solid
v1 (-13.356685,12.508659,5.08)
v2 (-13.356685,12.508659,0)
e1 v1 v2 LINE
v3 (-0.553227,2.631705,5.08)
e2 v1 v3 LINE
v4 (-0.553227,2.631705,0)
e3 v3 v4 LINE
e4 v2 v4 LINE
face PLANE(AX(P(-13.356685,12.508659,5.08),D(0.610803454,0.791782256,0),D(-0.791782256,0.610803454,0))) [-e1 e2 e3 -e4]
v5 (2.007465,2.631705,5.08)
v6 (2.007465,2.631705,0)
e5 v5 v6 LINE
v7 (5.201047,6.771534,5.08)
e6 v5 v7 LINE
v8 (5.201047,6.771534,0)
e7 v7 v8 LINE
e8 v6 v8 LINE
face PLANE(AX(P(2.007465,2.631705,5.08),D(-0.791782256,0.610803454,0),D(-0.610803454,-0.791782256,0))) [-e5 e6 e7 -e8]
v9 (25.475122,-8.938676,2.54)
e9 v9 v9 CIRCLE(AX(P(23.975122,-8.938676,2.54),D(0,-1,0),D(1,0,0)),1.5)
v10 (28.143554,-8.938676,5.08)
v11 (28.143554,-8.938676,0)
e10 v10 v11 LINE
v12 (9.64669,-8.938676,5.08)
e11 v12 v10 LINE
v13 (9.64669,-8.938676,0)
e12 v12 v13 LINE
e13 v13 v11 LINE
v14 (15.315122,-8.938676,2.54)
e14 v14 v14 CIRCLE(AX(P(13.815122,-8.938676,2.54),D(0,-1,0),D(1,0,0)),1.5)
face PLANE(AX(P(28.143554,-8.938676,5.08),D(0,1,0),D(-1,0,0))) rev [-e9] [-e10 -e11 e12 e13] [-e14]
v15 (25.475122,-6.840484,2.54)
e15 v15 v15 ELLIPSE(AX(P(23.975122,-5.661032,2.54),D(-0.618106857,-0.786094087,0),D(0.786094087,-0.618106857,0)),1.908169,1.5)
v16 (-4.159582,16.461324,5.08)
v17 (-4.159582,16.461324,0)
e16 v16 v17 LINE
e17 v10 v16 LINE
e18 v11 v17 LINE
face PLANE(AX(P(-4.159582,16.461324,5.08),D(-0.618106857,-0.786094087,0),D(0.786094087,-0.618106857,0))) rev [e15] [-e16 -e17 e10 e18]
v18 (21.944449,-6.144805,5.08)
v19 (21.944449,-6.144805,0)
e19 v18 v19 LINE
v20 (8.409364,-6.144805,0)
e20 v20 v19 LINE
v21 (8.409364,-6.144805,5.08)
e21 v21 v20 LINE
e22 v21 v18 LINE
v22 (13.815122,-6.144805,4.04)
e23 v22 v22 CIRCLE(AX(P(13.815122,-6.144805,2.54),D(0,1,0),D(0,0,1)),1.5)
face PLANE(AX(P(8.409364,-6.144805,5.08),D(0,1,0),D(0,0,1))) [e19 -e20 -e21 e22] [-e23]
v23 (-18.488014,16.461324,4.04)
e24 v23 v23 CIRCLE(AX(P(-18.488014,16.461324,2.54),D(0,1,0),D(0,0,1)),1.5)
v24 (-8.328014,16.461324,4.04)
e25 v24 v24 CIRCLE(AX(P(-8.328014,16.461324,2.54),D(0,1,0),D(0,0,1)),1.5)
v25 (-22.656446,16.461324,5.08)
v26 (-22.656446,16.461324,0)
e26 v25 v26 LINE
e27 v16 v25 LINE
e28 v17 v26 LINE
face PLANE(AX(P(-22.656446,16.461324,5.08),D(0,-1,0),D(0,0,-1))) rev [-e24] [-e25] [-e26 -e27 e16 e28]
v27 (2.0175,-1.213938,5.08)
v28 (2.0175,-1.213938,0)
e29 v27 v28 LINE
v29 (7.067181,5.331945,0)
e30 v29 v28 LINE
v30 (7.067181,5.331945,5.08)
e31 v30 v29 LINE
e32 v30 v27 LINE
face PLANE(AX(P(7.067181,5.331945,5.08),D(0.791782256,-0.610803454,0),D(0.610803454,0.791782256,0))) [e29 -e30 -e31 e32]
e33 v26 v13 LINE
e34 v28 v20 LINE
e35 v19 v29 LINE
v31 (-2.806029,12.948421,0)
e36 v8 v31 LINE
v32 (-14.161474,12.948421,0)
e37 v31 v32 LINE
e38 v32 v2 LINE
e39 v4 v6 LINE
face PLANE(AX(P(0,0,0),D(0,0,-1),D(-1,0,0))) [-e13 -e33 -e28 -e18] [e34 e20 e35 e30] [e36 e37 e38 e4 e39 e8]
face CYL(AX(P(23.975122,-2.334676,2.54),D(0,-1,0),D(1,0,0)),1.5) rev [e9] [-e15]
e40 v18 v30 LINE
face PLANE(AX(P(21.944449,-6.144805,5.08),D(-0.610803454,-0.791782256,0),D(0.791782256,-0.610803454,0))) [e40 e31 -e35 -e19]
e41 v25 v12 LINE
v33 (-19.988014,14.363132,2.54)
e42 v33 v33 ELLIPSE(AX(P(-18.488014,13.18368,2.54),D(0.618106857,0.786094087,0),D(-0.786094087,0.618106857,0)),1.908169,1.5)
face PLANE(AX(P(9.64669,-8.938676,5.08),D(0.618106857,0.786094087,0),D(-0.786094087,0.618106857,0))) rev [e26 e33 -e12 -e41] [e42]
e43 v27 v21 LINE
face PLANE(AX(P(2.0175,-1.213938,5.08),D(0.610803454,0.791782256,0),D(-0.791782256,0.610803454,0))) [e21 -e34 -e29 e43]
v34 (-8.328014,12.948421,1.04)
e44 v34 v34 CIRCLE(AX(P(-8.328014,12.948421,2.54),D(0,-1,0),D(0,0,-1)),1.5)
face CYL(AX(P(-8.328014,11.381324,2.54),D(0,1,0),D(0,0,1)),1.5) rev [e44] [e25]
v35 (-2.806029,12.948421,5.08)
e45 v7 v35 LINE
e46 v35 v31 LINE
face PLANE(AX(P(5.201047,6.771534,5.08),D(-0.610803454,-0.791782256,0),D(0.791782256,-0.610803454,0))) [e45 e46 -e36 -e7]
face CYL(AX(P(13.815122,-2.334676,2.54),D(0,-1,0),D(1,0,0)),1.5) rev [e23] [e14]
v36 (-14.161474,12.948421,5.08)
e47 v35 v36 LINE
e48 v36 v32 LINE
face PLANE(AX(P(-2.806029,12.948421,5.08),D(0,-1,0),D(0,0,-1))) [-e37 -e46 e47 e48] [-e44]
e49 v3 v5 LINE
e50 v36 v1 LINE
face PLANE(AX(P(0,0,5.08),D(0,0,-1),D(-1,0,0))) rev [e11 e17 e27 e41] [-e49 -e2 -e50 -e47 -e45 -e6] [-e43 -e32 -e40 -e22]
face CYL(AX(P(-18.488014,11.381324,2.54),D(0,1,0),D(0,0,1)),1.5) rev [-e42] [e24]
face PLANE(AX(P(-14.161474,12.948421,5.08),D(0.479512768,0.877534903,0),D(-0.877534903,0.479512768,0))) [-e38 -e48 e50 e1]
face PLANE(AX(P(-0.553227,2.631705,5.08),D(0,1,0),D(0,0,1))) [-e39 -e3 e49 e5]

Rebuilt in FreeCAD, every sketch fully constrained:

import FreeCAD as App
import Part
import Sketcher
Q = App.Units.Quantity

doc = App.newDocument("Part")
body = doc.addObject("PartDesign::Body", "Body")

# Sketch on XY plane
sketch1 = doc.addObject("Sketcher::SketchObject", "Sketch")
body.addObject(sketch1)
sketch1.AttachmentSupport = (doc.XY_Plane, [""])
sketch1.MapMode = "FlatFace"
sketch1.addGeometry([
    Part.LineSegment(App.Vector(-4.2, 16.5, 0), App.Vector(-22.7, 16.5, 0)),  # 0
    Part.LineSegment(App.Vector(-22.7, 16.5, 0), App.Vector(9.6, -8.9, 0)),  # 1
    Part.LineSegment(App.Vector(9.6, -8.9, 0), App.Vector(28.1, -8.9, 0)),  # 2
    Part.LineSegment(App.Vector(28.1, -8.9, 0), App.Vector(-4.2, 16.5, 0)),  # 3
    Part.LineSegment(App.Vector(2, -1.2, 0), App.Vector(7.1, 5.3, 0)),  # 4
    Part.LineSegment(App.Vector(7.1, 5.3, 0), App.Vector(21.9, -6.1, 0)),  # 5
    Part.LineSegment(App.Vector(21.9, -6.1, 0), App.Vector(8.4, -6.1, 0)),  # 6
    Part.LineSegment(App.Vector(8.4, -6.1, 0), App.Vector(2, -1.2, 0)),  # 7
    Part.LineSegment(App.Vector(-13.4, 12.5, 0), App.Vector(-14.2, 12.9, 0)),  # 8
    Part.LineSegment(App.Vector(-14.2, 12.9, 0), App.Vector(-2.8, 12.9, 0)),  # 9
    Part.LineSegment(App.Vector(-2.8, 12.9, 0), App.Vector(5.2, 6.8, 0)),  # 10
    Part.LineSegment(App.Vector(5.2, 6.8, 0), App.Vector(2, 2.6, 0)),  # 11
    Part.LineSegment(App.Vector(2, 2.6, 0), App.Vector(-0.6, 2.6, 0)),  # 12
    Part.LineSegment(App.Vector(-0.6, 2.6, 0), App.Vector(-13.4, 12.5, 0)),  # 13
], False)
sketch1.addConstraint([
    Sketcher.Constraint("Coincident", 0, 2, 1, 1),
    Sketcher.Constraint("Coincident", 1, 2, 2, 1),
    Sketcher.Constraint("Coincident", 2, 2, 3, 1),
    Sketcher.Constraint("Coincident", 3, 2, 0, 1),
    Sketcher.Constraint("Coincident", 4, 2, 5, 1),
    Sketcher.Constraint("Coincident", 5, 2, 6, 1),
    Sketcher.Constraint("Coincident", 6, 2, 7, 1),
    Sketcher.Constraint("Coincident", 7, 2, 4, 1),
    Sketcher.Constraint("Coincident", 8, 2, 9, 1),
    Sketcher.Constraint("Coincident", 9, 2, 10, 1),
    Sketcher.Constraint("Coincident", 10, 2, 11, 1),
    Sketcher.Constraint("Coincident", 11, 2, 12, 1),
    Sketcher.Constraint("Coincident", 12, 2, 13, 1),
    Sketcher.Constraint("Coincident", 13, 2, 8, 1),
    Sketcher.Constraint("Horizontal", 0),
    Sketcher.Constraint("Horizontal", 2),
    Sketcher.Constraint("Horizontal", 6),
    Sketcher.Constraint("Horizontal", 9),
    Sketcher.Constraint("Horizontal", 12),
    Sketcher.Constraint("Parallel", 1, 3),
    Sketcher.Constraint("Perpendicular", 4, 5),
    Sketcher.Constraint("Parallel", 5, 7),
    Sketcher.Constraint("Parallel", 7, 10),
    Sketcher.Constraint("Perpendicular", 10, 11),
    Sketcher.Constraint("Perpendicular", 11, 13),
    Sketcher.Constraint("DistanceY", 1, 2, 0, 2, Q("1 in")),
    Sketcher.Constraint("DistanceX", 0, 2, 2, 2, Q("2 in")),
    Sketcher.Constraint("Distance", 8, 0.917102),
    Sketcher.Constraint("DistanceX", 12, 2, 12, 1, 2.560692),
    Sketcher.Constraint("DistanceX", -1, 1, 7, 2, 2.0175),
    Sketcher.Constraint("DistanceX", 11, 2, 6, 2, 6.401899),
    Sketcher.Constraint("Distance", 1, 41.093218),
    Sketcher.Constraint("Distance", 13, 16.170429),
    Sketcher.Constraint("DistanceX", 6, 2, 6, 1, 13.535085),
    Sketcher.Constraint("DistanceX", 9, 1, 9, 2, 11.355445),
    Sketcher.Constraint("DistanceX", -1, 1, 1, 2, 9.64669),
    Sketcher.Constraint("DistanceX", -1, 1, 4, 2, 7.067181),
    Sketcher.Constraint("DistanceX", -1, 1, 5, 2, 21.944449),
    Sketcher.Constraint("DistanceY", -1, 1, 8, 2, 12.948421),
    Sketcher.Constraint("DistanceX", 9, 2, -1, 1, 2.806029),
    Sketcher.Constraint("DistanceY", 1, 2, 4, 2, 14.270621),
    Sketcher.Constraint("DistanceY", 7, 2, 8, 2, 14.162359),
])
pad1 = doc.addObject("PartDesign::Pad", "Pad")
body.addObject(pad1)
pad1.Profile = sketch1
pad1.Length = Q("0.2 in")

# Sketch on XZ plane
sketch2 = doc.addObject("Sketcher::SketchObject", "Sketch001")
body.addObject(sketch2)
sketch2.AttachmentSupport = (doc.XZ_Plane, [""])
sketch2.MapMode = "FlatFace"
sketch2.AttachmentOffset = App.Placement(App.Vector(0, 0, -16.461324), App.Rotation())
sketch2.addGeometry([
    Part.Circle(App.Vector(-18.5, 2.5, 0), App.Vector(0, 0, 1), 1.5),
    Part.Circle(App.Vector(-8.3, 2.5, 0), App.Vector(0, 0, 1), 1.5),
], False)
sketch2.addConstraint([
    Sketcher.Constraint("Equal", 0, 1),
    Sketcher.Constraint("Horizontal", 0, 3, 1, 3),
    Sketcher.Constraint("DistanceY", -1, 1, 0, 3, Q("0.1 in")),
    Sketcher.Constraint("DistanceX", 0, 3, 1, 3, Q("0.4 in")),
    Sketcher.Constraint("Diameter", 0, 3.0),
    Sketcher.Constraint("DistanceX", 0, 3, -1, 1, 18.488014),
])
pocket1 = doc.addObject("PartDesign::Pocket", "Pocket")
body.addObject(pocket1)
pocket1.Profile = sketch2
pocket1.Length = Q("0.2 in")
pocket1.Reversed = True

# Sketch on XZ plane
sketch3 = doc.addObject("Sketcher::SketchObject", "Sketch002")
body.addObject(sketch3)
sketch3.AttachmentSupport = (doc.XZ_Plane, [""])
sketch3.MapMode = "FlatFace"
sketch3.AttachmentOffset = App.Placement(App.Vector(0, 0, 8.938676), App.Rotation())
sketch3.addGeometry([
    Part.Circle(App.Vector(24, 2.5, 0), App.Vector(0, 0, 1), 1.5),
    Part.Circle(App.Vector(13.8, 2.5, 0), App.Vector(0, 0, 1), 1.5),
], False)
sketch3.addConstraint([
    Sketcher.Constraint("Equal", 0, 1),
    Sketcher.Constraint("Horizontal", 0, 3, 1, 3),
    Sketcher.Constraint("DistanceY", -1, 1, 0, 3, Q("0.1 in")),
    Sketcher.Constraint("DistanceX", 1, 3, 0, 3, Q("0.4 in")),
    Sketcher.Constraint("Diameter", 0, 3.0),
    Sketcher.Constraint("DistanceX", -1, 1, 0, 3, 23.975122),
])
pocket2 = doc.addObject("PartDesign::Pocket", "Pocket001")
body.addObject(pocket2)
pocket2.Profile = sketch3
pocket2.Length = Q("0.26 in")

doc.recompute()
